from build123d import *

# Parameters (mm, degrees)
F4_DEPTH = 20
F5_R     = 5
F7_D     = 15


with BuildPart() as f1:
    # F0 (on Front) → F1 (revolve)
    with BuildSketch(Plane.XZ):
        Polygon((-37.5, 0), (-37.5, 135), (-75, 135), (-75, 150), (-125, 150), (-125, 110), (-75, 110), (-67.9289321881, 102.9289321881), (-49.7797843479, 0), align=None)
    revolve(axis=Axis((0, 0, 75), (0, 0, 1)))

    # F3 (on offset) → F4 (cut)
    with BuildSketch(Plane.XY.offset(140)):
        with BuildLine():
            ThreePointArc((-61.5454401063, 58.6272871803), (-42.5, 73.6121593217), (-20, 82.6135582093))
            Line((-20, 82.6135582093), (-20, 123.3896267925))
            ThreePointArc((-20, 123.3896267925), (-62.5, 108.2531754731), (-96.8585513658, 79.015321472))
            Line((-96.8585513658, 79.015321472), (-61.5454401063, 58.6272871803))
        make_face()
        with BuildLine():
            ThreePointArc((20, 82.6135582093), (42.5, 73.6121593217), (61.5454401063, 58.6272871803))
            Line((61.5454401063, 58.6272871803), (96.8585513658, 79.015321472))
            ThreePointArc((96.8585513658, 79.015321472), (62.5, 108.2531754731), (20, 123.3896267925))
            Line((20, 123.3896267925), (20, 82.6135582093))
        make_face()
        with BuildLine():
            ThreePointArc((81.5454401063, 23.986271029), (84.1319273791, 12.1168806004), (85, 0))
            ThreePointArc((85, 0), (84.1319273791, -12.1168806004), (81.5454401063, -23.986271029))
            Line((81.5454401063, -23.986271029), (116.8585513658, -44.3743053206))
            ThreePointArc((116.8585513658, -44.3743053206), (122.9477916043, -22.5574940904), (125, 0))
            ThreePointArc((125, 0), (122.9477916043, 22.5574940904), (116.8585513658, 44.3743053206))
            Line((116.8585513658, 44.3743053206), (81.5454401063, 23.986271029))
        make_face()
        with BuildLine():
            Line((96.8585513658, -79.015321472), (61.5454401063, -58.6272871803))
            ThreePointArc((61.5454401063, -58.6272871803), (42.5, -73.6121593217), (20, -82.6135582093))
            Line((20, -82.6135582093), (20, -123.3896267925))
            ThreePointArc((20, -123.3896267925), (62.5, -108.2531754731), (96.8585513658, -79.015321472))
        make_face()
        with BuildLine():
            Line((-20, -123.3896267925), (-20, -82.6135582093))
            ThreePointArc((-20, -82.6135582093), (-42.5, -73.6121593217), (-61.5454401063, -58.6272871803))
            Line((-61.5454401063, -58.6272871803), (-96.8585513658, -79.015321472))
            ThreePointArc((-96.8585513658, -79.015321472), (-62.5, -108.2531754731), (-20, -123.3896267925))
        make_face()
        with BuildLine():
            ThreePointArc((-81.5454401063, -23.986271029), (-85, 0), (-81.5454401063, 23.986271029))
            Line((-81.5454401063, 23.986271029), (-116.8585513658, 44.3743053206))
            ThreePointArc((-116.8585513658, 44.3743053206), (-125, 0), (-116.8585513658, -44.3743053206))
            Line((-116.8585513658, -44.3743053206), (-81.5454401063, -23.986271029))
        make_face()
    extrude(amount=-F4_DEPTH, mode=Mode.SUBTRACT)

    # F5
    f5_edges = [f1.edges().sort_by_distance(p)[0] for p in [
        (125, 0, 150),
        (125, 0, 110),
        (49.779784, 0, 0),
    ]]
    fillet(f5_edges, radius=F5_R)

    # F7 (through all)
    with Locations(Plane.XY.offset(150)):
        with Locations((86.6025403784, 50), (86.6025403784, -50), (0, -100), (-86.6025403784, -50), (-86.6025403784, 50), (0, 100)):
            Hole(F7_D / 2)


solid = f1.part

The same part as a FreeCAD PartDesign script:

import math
import FreeCAD as App
import Part
import Sketcher

V = App.Vector
Q = App.Units.Quantity


def edges_at(feature, points):
    """Names of the edges that pass closest to the given points."""
    edges = feature.Shape.Edges
    near = lambda p: min(range(len(edges)), key=lambda i: edges[i].distToShape(Part.Vertex(*p))[0])
    return sorted({f"Edge{near(p) + 1}" for p in points})


def add_polygon(sketch, points):
    """Adds a closed chain of lines whose ends are joined by coincident constraints."""
    first, n = sketch.GeometryCount, len(points)
    for a, b in zip(points, points[1:] + points[:1]):
        sketch.addGeometry(Part.LineSegment(App.Vector(*a, 0), App.Vector(*b, 0)), False)
    for i in range(n):
        sketch.addConstraint(Sketcher.Constraint("Coincident", first + i, 2, first + (i + 1) % n, 1))

doc = App.newDocument("Part")
body = doc.addObject("PartDesign::Body", "Body")

# Sketch on XZ plane
sketch1 = body.newObject("Sketcher::SketchObject", "Sketch")
sketch1.AttachmentSupport = (doc.getObject("XZ_Plane"), [""])
sketch1.MapMode = "FlatFace"
add_polygon(sketch1, [(-38, 0), (-38, 135), (-75, 135), (-75, 150), (-125, 150), (-125, 110), (-75, 110), (-68, 103), (-50, 0)])  # lines 0-8
sketch1.addConstraint(Sketcher.Constraint("Vertical", 0))
sketch1.addConstraint(Sketcher.Constraint("Horizontal", 1))
sketch1.addConstraint(Sketcher.Constraint("Vertical", 2))
sketch1.addConstraint(Sketcher.Constraint("Horizontal", 3))
sketch1.addConstraint(Sketcher.Constraint("Vertical", 4))
sketch1.addConstraint(Sketcher.Constraint("Horizontal", 5))
sketch1.addConstraint(Sketcher.Constraint("Horizontal", 8))
sketch1.addConstraint(Sketcher.Constraint("PointOnObject", 7, 2, -1))
sketch1.addConstraint(Sketcher.Constraint("Vertical", 2, 2, 5, 2))
sketch1.addConstraint(Sketcher.Constraint("DistanceX", 3, 2, 3, 1, Q("50 mm")))
sketch1.addConstraint(Sketcher.Constraint("DistanceY", 0, 1, 0, 2, Q("135 mm")))
sketch1.addConstraint(Sketcher.Constraint("DistanceY", 2, 1, 2, 2, Q("15 mm")))
sketch1.addConstraint(Sketcher.Constraint("DistanceY", 4, 2, 4, 1, Q("40 mm")))
sketch1.addConstraint(Sketcher.Constraint("Angle", 6, Q("-45 deg")))
sketch1.addConstraint(Sketcher.Constraint("Angle", 7, Q("-80 deg")))
sketch1.addConstraint(Sketcher.Constraint("Distance", 6, Q("10 mm")))
sketch1.addConstraint(Sketcher.Constraint("DistanceX", 1, 2, 1, 1, Q("37.5 mm")))
sketch1.addConstraint(Sketcher.Constraint("DistanceX", 1, 2, -1, 1, Q("75 mm")))
revolution = body.newObject("PartDesign::Revolution", "Revolution")
revolution.Profile = sketch1
revolution.ReferenceAxis = (sketch1, ["V_Axis"])
revolution.Angle = 360

# Sketch on XY plane
sketch2 = body.newObject("Sketcher::SketchObject", "Sketch001")
sketch2.AttachmentSupport = (doc.getObject("XY_Plane"), [""])
sketch2.MapMode = "FlatFace"
sketch2.AttachmentOffset = App.Placement(V(0, 0, 140), App.Rotation())
sketch2.addGeometry(Part.ArcOfCircle(Part.Circle(V(0, 0, 0), V(0, 0, 1), 85), math.radians(104), math.radians(136)), False)
sketch2.addGeometry(Part.LineSegment(V(-20, 83, 0), V(-20, 123, 0)), False)
sketch2.addGeometry(Part.ArcOfCircle(Part.Circle(V(0, 0, 0), V(0, 0, 1), 125), math.radians(99), math.radians(141)), False)
sketch2.addGeometry(Part.LineSegment(V(-97, 79, 0), V(-62, 59, 0)), False)
sketch2.addGeometry(Part.ArcOfCircle(Part.Circle(V(0, 0, 0), V(0, 0, 1), 85), math.radians(44), math.radians(76)), False)
sketch2.addGeometry(Part.LineSegment(V(62, 59, 0), V(97, 79, 0)), False)
sketch2.addGeometry(Part.ArcOfCircle(Part.Circle(V(0, 0, 0), V(0, 0, 1), 125), math.radians(39), math.radians(81)), False)
sketch2.addGeometry(Part.LineSegment(V(20, 123, 0), V(20, 83, 0)), False)
sketch2.addGeometry(Part.ArcOfCircle(Part.Circle(V(0, 0, 0), V(0, 0, 1), 85), math.radians(0), math.radians(16.39)), False)
sketch2.addGeometry(Part.ArcOfCircle(Part.Circle(V(0, 0, 0), V(0, 0, 1), 85), math.radians(-16.39), math.radians(0)), False)
sketch2.addGeometry(Part.LineSegment(V(82, -24, 0), V(117, -44, 0)), False)
sketch2.addGeometry(Part.ArcOfCircle(Part.Circle(V(0, 0, 0), V(0, 0, 1), 125), math.radians(-21), math.radians(0)), False)
sketch2.addGeometry(Part.ArcOfCircle(Part.Circle(V(0, 0, 0), V(0, 0, 1), 125), math.radians(0), math.radians(21)), False)
sketch2.addGeometry(Part.LineSegment(V(117, 44, 0), V(82, 24, 0)), False)
sketch2.addGeometry(Part.LineSegment(V(97, -79, 0), V(62, -59, 0)), False)
sketch2.addGeometry(Part.ArcOfCircle(Part.Circle(V(0, 0, 0), V(0, 0, 1), 85), math.radians(-76), math.radians(-44)), False)
sketch2.addGeometry(Part.LineSegment(V(20, -83, 0), V(20, -123, 0)), False)
sketch2.addGeometry(Part.ArcOfCircle(Part.Circle(V(0, 0, 0), V(0, 0, 1), 125), math.radians(-81), math.radians(-39)), False)
sketch2.addGeometry(Part.LineSegment(V(-20, -123, 0), V(-20, -83, 0)), False)
sketch2.addGeometry(Part.ArcOfCircle(Part.Circle(V(0, 0, 0), V(0, 0, 1), 85), math.radians(-136), math.radians(-104)), False)
sketch2.addGeometry(Part.LineSegment(V(-62, -59, 0), V(-97, -79, 0)), False)
sketch2.addGeometry(Part.ArcOfCircle(Part.Circle(V(0, 0, 0), V(0, 0, 1), 125), math.radians(-141), math.radians(-99)), False)
sketch2.addGeometry(Part.ArcOfCircle(Part.Circle(V(0, 0, 0), V(0, 0, 1), 85), math.radians(164), math.radians(196)), False)
sketch2.addGeometry(Part.LineSegment(V(-82, 24, 0), V(-117, 44, 0)), False)
sketch2.addGeometry(Part.ArcOfCircle(Part.Circle(V(0, 0, 0), V(0, 0, 1), 125), math.radians(159), math.radians(201)), False)
sketch2.addGeometry(Part.LineSegment(V(-117, -44, 0), V(-82, -24, 0)), False)
sketch2.addConstraint(Sketcher.Constraint("Coincident", 0, 1, 1, 1))
sketch2.addConstraint(Sketcher.Constraint("Coincident", 1, 2, 2, 1))
sketch2.addConstraint(Sketcher.Constraint("Coincident", 2, 2, 3, 1))
sketch2.addConstraint(Sketcher.Constraint("Coincident", 3, 2, 0, 2))
sketch2.addConstraint(Sketcher.Constraint("Coincident", 4, 1, 5, 1))
sketch2.addConstraint(Sketcher.Constraint("Coincident", 5, 2, 6, 1))
sketch2.addConstraint(Sketcher.Constraint("Coincident", 6, 2, 7, 1))
sketch2.addConstraint(Sketcher.Constraint("Coincident", 7, 2, 4, 2))
sketch2.addConstraint(Sketcher.Constraint("Tangent", 8, 1, 9, 2))
sketch2.addConstraint(Sketcher.Constraint("Coincident", 9, 1, 10, 1))
sketch2.addConstraint(Sketcher.Constraint("Coincident", 10, 2, 11, 1))
sketch2.addConstraint(Sketcher.Constraint("Tangent", 11, 2, 12, 1))
sketch2.addConstraint(Sketcher.Constraint("Coincident", 12, 2, 13, 1))
sketch2.addConstraint(Sketcher.Constraint("Coincident", 13, 2, 8, 2))
sketch2.addConstraint(Sketcher.Constraint("Coincident", 14, 2, 15, 2))
sketch2.addConstraint(Sketcher.Constraint("Coincident", 15, 1, 16, 1))
sketch2.addConstraint(Sketcher.Constraint("Coincident", 16, 2, 17, 1))
sketch2.addConstraint(Sketcher.Constraint("Coincident", 17, 2, 14, 1))
sketch2.addConstraint(Sketcher.Constraint("Coincident", 18, 2, 19, 2))
sketch2.addConstraint(Sketcher.Constraint("Coincident", 19, 1, 20, 1))
sketch2.addConstraint(Sketcher.Constraint("Coincident", 20, 2, 21, 1))
sketch2.addConstraint(Sketcher.Constraint("Coincident", 21, 2, 18, 1))
sketch2.addConstraint(Sketcher.Constraint("Coincident", 22, 1, 23, 1))
sketch2.addConstraint(Sketcher.Constraint("Coincident", 23, 2, 24, 1))
sketch2.addConstraint(Sketcher.Constraint("Coincident", 24, 2, 25, 1))
sketch2.addConstraint(Sketcher.Constraint("Coincident", 25, 2, 22, 2))
sketch2.addConstraint(Sketcher.Constraint("Vertical", 1))
sketch2.addConstraint(Sketcher.Constraint("Vertical", 7))
sketch2.addConstraint(Sketcher.Constraint("Vertical", 16))
sketch2.addConstraint(Sketcher.Constraint("Vertical", 18))
sketch2.addConstraint(Sketcher.Constraint("Coincident", 0, 3, -1, 1))
sketch2.addConstraint(Sketcher.Constraint("Coincident", 2, 3, -1, 1))
sketch2.addConstraint(Sketcher.Constraint("Coincident", 4, 3, -1, 1))
sketch2.addConstraint(Sketcher.Constraint("Coincident", 6, 3, -1, 1))
sketch2.addConstraint(Sketcher.Constraint("Coincident", 8, 3, -1, 1))
sketch2.addConstraint(Sketcher.Constraint("Coincident", 11, 3, -1, 1))
sketch2.addConstraint(Sketcher.Constraint("Coincident", 15, 3, -1, 1))
sketch2.addConstraint(Sketcher.Constraint("Coincident", 17, 3, -1, 1))
sketch2.addConstraint(Sketcher.Constraint("Coincident", 19, 3, -1, 1))
sketch2.addConstraint(Sketcher.Constraint("Coincident", 21, 3, -1, 1))
sketch2.addConstraint(Sketcher.Constraint("Coincident", 22, 3, -1, 1))
sketch2.addConstraint(Sketcher.Constraint("Coincident", 24, 3, -1, 1))
sketch2.addConstraint(Sketcher.Constraint("Equal", 0, 4))
sketch2.addConstraint(Sketcher.Constraint("Equal", 2, 6))
sketch2.addConstraint(Sketcher.Constraint("Equal", 4, 8))
sketch2.addConstraint(Sketcher.Constraint("Equal", 8, 9))
sketch2.addConstraint(Sketcher.Constraint("Equal", 6, 11))
sketch2.addConstraint(Sketcher.Constraint("Equal", 11, 12))
sketch2.addConstraint(Sketcher.Constraint("Equal", 9, 15))
sketch2.addConstraint(Sketcher.Constraint("Equal", 12, 17))
sketch2.addConstraint(Sketcher.Constraint("Equal", 15, 19))
sketch2.addConstraint(Sketcher.Constraint("Equal", 17, 21))
sketch2.addConstraint(Sketcher.Constraint("Equal", 19, 22))
sketch2.addConstraint(Sketcher.Constraint("Equal", 21, 24))
sketch2.addConstraint(Sketcher.Constraint("PointOnObject", 8, 1, -1))
sketch2.addConstraint(Sketcher.Constraint("PointOnObject", 11, 2, -1))
sketch2.addConstraint(Sketcher.Constraint("Parallel", 3, 10))
sketch2.addConstraint(Sketcher.Constraint("Parallel", 5, 13))
sketch2.addConstraint(Sketcher.Constraint("Parallel", 10, 14))
sketch2.addConstraint(Sketcher.Constraint("Parallel", 13, 20))
sketch2.addConstraint(Sketcher.Constraint("Parallel", 14, 23))
sketch2.addConstraint(Sketcher.Constraint("Parallel", 20, 25))
sketch2.addConstraint(Sketcher.Constraint("Horizontal", 3, 2, 4, 1))
sketch2.addConstraint(Sketcher.Constraint("Horizontal", 2, 2, 5, 2))
sketch2.addConstraint(Sketcher.Constraint("Horizontal", 1, 2, 6, 2))
sketch2.addConstraint(Sketcher.Constraint("Horizontal", 15, 1, 18, 2))
sketch2.addConstraint(Sketcher.Constraint("Horizontal", 14, 2, 19, 1))
sketch2.addConstraint(Sketcher.Constraint("Horizontal", 13, 2, 22, 1))
sketch2.addConstraint(Sketcher.Constraint("Horizontal", 10, 2, 24, 2))
sketch2.addConstraint(Sketcher.Constraint("Vertical", 10, 2, 12, 2))
sketch2.addConstraint(Sketcher.Constraint("Vertical", 4, 1, 14, 2))
sketch2.addConstraint(Sketcher.Constraint("Vertical", 7, 2, 15, 1))
sketch2.addConstraint(Sketcher.Constraint("Equal", 5, 10))
sketch2.addConstraint(Sketcher.Constraint("Radius", 0, Q("85 mm")))
sketch2.addConstraint(Sketcher.Constraint("Radius", 2, Q("125 mm")))
sketch2.addConstraint(Sketcher.Constraint("Angle", 3, Q("-30 deg")))
sketch2.addConstraint(Sketcher.Constraint("DistanceX", 0, 1, -1, 1, Q("20 mm")))
sketch2.addConstraint(Sketcher.Constraint("DistanceX", 5, 2, 12, 2, Q("20 mm")))
pocket1 = body.newObject("PartDesign::Pocket", "Pocket")
pocket1.Profile = sketch2
pocket1.Length = 20
doc.recompute()

fillet = body.newObject("PartDesign::Fillet", "Fillet")
fillet.Base = (pocket1, edges_at(pocket1, [(125, 0, 150), (125, 0, 110), (49.78, 0, 0)]))
fillet.Radius = 5

# Sketch on XY plane
sketch3 = body.newObject("Sketcher::SketchObject", "Sketch002")
sketch3.AttachmentSupport = (doc.getObject("XY_Plane"), [""])
sketch3.MapMode = "FlatFace"
sketch3.AttachmentOffset = App.Placement(V(0, 0, 150), App.Rotation())
sketch3.addGeometry(Part.Circle(V(87, 50, 0), V(0, 0, 1), 8), False)
sketch3.addGeometry(Part.Circle(V(87, -50, 0), V(0, 0, 1), 8), False)
sketch3.addGeometry(Part.Circle(V(0, -100, 0), V(0, 0, 1), 8), False)
sketch3.addGeometry(Part.Circle(V(-87, -50, 0), V(0, 0, 1), 8), False)
sketch3.addGeometry(Part.Circle(V(-87, 50, 0), V(0, 0, 1), 8), False)
sketch3.addGeometry(Part.Circle(V(0, 100, 0), V(0, 0, 1), 8), False)
sketch3.addConstraint(Sketcher.Constraint("Equal", 0, 1))
sketch3.addConstraint(Sketcher.Constraint("Equal", 1, 2))
sketch3.addConstraint(Sketcher.Constraint("Equal", 2, 3))
sketch3.addConstraint(Sketcher.Constraint("Equal", 3, 4))
sketch3.addConstraint(Sketcher.Constraint("Equal", 4, 5))
sketch3.addConstraint(Sketcher.Constraint("Symmetric", 0, 3, 3, 3, -1, 1))
sketch3.addConstraint(Sketcher.Constraint("Symmetric", 1, 3, 4, 3, -1, 1))
sketch3.addConstraint(Sketcher.Constraint("Symmetric", 2, 3, 5, 3, -1, 1))
sketch3.addConstraint(Sketcher.Constraint("Symmetric", 1, 3, 3, 3, -2))
sketch3.addConstraint(Sketcher.Constraint("PointOnObject", 2, 3, -2))
sketch3.addConstraint(Sketcher.Constraint("Diameter", 0, Q("15 mm")))
sketch3.addConstraint(Sketcher.Constraint("DistanceY", -1, 1, 0, 3, Q("50 mm")))
sketch3.addConstraint(Sketcher.Constraint("DistanceY", 2, 3, -1, 1, Q("100 mm")))
sketch3.addConstraint(Sketcher.Constraint("DistanceX", -1, 1, 0, 3, Q("86.60254 mm")))
doc.recompute()
hole = body.newObject("PartDesign::Hole", "Hole")
hole.Profile = sketch3
hole.ThreadType = "None"
hole.Diameter = 15
hole.DepthType = "ThroughAll"

doc.recompute()
